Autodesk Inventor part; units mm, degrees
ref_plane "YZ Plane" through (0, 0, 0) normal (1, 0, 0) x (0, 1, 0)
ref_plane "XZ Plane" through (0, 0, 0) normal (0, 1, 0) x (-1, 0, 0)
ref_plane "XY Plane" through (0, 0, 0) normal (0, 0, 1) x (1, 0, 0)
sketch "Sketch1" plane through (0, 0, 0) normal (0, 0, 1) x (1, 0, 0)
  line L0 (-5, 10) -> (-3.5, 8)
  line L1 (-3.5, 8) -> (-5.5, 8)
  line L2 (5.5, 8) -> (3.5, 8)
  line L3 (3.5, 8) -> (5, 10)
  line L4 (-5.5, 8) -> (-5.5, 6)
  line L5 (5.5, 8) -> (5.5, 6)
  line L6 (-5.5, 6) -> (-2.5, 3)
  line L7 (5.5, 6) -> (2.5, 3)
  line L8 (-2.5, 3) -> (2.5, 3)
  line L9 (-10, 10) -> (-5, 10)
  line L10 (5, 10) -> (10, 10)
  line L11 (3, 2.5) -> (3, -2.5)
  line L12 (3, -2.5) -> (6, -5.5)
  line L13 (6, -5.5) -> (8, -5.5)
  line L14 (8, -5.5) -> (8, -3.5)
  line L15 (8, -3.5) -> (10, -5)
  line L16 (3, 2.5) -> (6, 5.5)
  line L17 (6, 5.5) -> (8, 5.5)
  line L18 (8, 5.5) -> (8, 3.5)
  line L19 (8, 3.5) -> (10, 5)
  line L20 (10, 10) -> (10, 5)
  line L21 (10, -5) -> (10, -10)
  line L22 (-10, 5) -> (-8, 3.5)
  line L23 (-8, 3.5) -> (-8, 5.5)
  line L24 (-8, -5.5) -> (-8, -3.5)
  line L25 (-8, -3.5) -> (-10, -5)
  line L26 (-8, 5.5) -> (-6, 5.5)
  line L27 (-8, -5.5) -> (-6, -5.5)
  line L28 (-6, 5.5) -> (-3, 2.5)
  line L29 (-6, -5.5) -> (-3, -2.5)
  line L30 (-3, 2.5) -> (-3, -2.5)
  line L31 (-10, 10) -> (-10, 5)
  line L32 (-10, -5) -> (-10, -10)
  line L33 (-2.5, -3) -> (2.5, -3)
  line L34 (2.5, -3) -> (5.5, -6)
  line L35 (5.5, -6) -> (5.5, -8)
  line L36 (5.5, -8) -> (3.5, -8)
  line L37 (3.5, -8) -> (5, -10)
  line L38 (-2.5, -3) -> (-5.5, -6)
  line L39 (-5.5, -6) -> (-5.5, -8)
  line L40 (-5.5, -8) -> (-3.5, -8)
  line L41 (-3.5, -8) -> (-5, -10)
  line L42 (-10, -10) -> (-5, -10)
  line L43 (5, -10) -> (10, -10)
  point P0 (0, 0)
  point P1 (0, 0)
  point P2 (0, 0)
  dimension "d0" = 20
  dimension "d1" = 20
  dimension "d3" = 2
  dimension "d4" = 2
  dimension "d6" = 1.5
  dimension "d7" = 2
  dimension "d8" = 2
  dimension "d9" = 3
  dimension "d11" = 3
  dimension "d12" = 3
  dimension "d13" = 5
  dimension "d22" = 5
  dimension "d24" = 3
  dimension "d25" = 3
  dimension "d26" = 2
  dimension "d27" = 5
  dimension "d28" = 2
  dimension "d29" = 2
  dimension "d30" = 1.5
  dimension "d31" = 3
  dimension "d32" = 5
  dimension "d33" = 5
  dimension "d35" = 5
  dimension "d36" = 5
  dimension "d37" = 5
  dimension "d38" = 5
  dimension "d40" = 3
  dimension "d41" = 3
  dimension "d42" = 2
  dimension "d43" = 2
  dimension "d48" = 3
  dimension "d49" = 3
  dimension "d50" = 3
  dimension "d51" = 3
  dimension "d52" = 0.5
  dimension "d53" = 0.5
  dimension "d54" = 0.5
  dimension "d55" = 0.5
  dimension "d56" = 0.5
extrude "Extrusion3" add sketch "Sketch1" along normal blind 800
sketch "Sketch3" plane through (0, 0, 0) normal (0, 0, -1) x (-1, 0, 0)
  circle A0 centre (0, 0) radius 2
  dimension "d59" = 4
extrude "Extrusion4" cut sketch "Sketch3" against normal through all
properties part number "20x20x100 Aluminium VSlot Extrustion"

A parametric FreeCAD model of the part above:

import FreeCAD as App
import Part
import Sketcher
Q = App.Units.Quantity


def add_polygon(sketch, points):
    """Adds a closed chain of lines whose ends are joined by coincident constraints."""
    first, n = sketch.GeometryCount, len(points)
    for a, b in zip(points, points[1:] + points[:1]):
        sketch.addGeometry(Part.LineSegment(App.Vector(*a, 0), App.Vector(*b, 0)), False)
    for i in range(n):
        sketch.addConstraint(Sketcher.Constraint("Coincident", first + i, 2, first + (i + 1) % n, 1))

doc = App.newDocument("Part")
body = doc.addObject("PartDesign::Body", "Body")

# Sketch on XY plane
sketch1 = body.newObject("Sketcher::SketchObject", "Sketch")
sketch1.AttachmentSupport = (doc.getObject("XY_Plane"), [""])
sketch1.MapMode = "FlatFace"
add_polygon(sketch1, [(-3.5, 8), (-5, 10), (-10, 10), (-10, 5), (-8, 3.5), (-8, 5.5), (-6, 5.5), (-3, 2.5), (-3, -2.5), (-6, -5.5), (-8, -5.5), (-8, -3.5), (-10, -5), (-10, -10), (-5, -10), (-3.5, -8), (-5.5, -8), (-5.5, -6), (-2.5, -3), (2.5, -3), (5.5, -6), (5.5, -8), (3.5, -8), (5, -10), (10, -10), (10, -5), (8, -3.5), (8, -5.5), (6, -5.5), (3, -2.5), (3, 2.5), (6, 5.5), (8, 5.5), (8, 3.5), (10, 5), (10, 10), (5, 10), (3.5, 8), (5.5, 8), (5.5, 6), (2.5, 3), (-2.5, 3), (-5.5, 6), (-5.5, 8)])  # lines 0-43
sketch1.addConstraint([
    Sketcher.Constraint("Horizontal", 1),
    Sketcher.Constraint("Vertical", 2),
    Sketcher.Constraint("Vertical", 4),
    Sketcher.Constraint("Horizontal", 5),
    Sketcher.Constraint("Vertical", 7),
    Sketcher.Constraint("Horizontal", 9),
    Sketcher.Constraint("Vertical", 10),
    Sketcher.Constraint("Vertical", 12),
    Sketcher.Constraint("Horizontal", 13),
    Sketcher.Constraint("Horizontal", 15),
    Sketcher.Constraint("Vertical", 16),
    Sketcher.Constraint("Horizontal", 18),
    Sketcher.Constraint("Vertical", 20),
    Sketcher.Constraint("Horizontal", 21),
    Sketcher.Constraint("Horizontal", 23),
    Sketcher.Constraint("Vertical", 24),
    Sketcher.Constraint("Vertical", 26),
    Sketcher.Constraint("Horizontal", 27),
    Sketcher.Constraint("Vertical", 29),
    Sketcher.Constraint("Horizontal", 31),
    Sketcher.Constraint("Vertical", 32),
    Sketcher.Constraint("Vertical", 34),
    Sketcher.Constraint("Horizontal", 35),
    Sketcher.Constraint("Horizontal", 37),
    Sketcher.Constraint("Vertical", 38),
    Sketcher.Constraint("Horizontal", 40),
    Sketcher.Constraint("Vertical", 42),
    Sketcher.Constraint("Horizontal", 43),
    Sketcher.Constraint("Symmetric", 0, 2, 22, 2, -1, 1),
    Sketcher.Constraint("Symmetric", 2, 2, 24, 2, -1, 1),
    Sketcher.Constraint("Symmetric", 3, 2, 25, 2, -1, 1),
    Sketcher.Constraint("Symmetric", 5, 2, 27, 2, -1, 1),
    Sketcher.Constraint("Symmetric", 6, 2, 28, 2, -1, 1),
    Sketcher.Constraint("Symmetric", 8, 2, 30, 2, -1, 1),
    Sketcher.Constraint("Symmetric", 10, 2, 32, 2, -1, 1),
    Sketcher.Constraint("Symmetric", 11, 2, 33, 2, -1, 1),
    Sketcher.Constraint("Symmetric", 13, 2, 35, 2, -1, 1),
    Sketcher.Constraint("Symmetric", 14, 2, 36, 2, -1, 1),
    Sketcher.Constraint("Symmetric", 16, 2, 38, 2, -1, 1),
    Sketcher.Constraint("Symmetric", 17, 2, 39, 2, -1, 1),
    Sketcher.Constraint("Symmetric", 19, 2, 41, 2, -1, 1),
    Sketcher.Constraint("Symmetric", 21, 2, 43, 2, -1, 1),
    Sketcher.Constraint("Symmetric", 16, 2, 19, 2, -2),
    Sketcher.Constraint("Symmetric", 14, 2, 21, 2, -2),
    Sketcher.Constraint("Symmetric", 13, 2, 22, 2, -2),
    Sketcher.Constraint("Symmetric", 11, 2, 24, 2, -2),
    Sketcher.Constraint("Symmetric", 10, 2, 25, 2, -2),
    Sketcher.Constraint("Symmetric", 8, 2, 27, 2, -2),
    Sketcher.Constraint("Perpendicular", 6, 8),
    Sketcher.Constraint("Perpendicular", 0, 11),
    Sketcher.Constraint("Parallel", 8, 17),
    Sketcher.Constraint("Perpendicular", 17, 19),
    Sketcher.Constraint("Perpendicular", 28, 30),
    Sketcher.Constraint("Perpendicular", 39, 41),
    Sketcher.Constraint("Horizontal", 7, 2, 28, 2),
    Sketcher.Constraint("Equal", 9, 15),
    Sketcher.Constraint("Equal", 13, 18),
    Sketcher.Constraint("Equal", 40, 2),
    Sketcher.Constraint("Equal", 43, 4),
    Sketcher.Constraint("Equal", 2, 7),
    Sketcher.Constraint("Equal", 10, 16),
    Sketcher.Constraint("Equal", 0, 3),
    Sketcher.Constraint("Equal", 8, 17),
    Sketcher.Constraint("DistanceX", 1, 2, 1, 1, Q("5 mm")),
    Sketcher.Constraint("DistanceX", 5, 1, 5, 2, Q("2 mm")),
    Sketcher.Constraint("DistanceX", 0, 2, -1, 1, Q("5 mm")),
    Sketcher.Constraint("DistanceX", 6, 2, -1, 1, Q("3 mm")),
    Sketcher.Constraint("DistanceX", 2, 2, 3, 2, Q("2 mm")),
])
pad1 = body.newObject("PartDesign::Pad", "Pad")
pad1.Profile = sketch1
pad1.Length = 800

# Sketch on XY plane
sketch2 = body.newObject("Sketcher::SketchObject", "Sketch001")
sketch2.AttachmentSupport = (doc.getObject("XY_Plane"), [""])
sketch2.MapMode = "FlatFace"
sketch2.addGeometry(Part.Circle(App.Vector(0, 0, 0), App.Vector(0, 0, 1), 2), False)
sketch2.addConstraint([
    Sketcher.Constraint("Coincident", 0, 3, -1, 1),
    Sketcher.Constraint("Diameter", 0, Q("4 mm")),
])
pocket1 = body.newObject("PartDesign::Pocket", "Pocket")
pocket1.Profile = sketch2
pocket1.Type = "ThroughAll"
pocket1.Reversed = True

doc.recompute()
